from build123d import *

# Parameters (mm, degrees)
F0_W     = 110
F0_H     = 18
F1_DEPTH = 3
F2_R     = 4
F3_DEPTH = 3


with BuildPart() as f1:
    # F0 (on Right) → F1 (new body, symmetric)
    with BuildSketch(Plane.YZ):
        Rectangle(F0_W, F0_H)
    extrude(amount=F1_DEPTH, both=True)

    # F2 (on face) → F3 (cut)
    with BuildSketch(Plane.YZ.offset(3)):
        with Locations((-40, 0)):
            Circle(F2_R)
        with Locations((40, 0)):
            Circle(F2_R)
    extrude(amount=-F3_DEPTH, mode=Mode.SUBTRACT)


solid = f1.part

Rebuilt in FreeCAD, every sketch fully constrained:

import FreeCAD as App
import Part
import Sketcher

V = App.Vector


def add_polygon(sketch, points):
    """Adds a closed chain of lines whose ends are joined by coincident constraints."""
    first, n = sketch.GeometryCount, len(points)
    for a, b in zip(points, points[1:] + points[:1]):
        sketch.addGeometry(Part.LineSegment(App.Vector(*a, 0), App.Vector(*b, 0)), False)
    for i in range(n):
        sketch.addConstraint(Sketcher.Constraint("Coincident", first + i, 2, first + (i + 1) % n, 1))

doc = App.newDocument("Part")
body = doc.addObject("PartDesign::Body", "Body")

# Sketch on YZ plane
sketch1 = body.newObject("Sketcher::SketchObject", "Sketch")
sketch1.AttachmentSupport = (doc.getObject("YZ_Plane"), [""])
sketch1.MapMode = "FlatFace"
add_polygon(sketch1, [(-55, 9), (-55, -9), (55, -9), (55, 9)])  # lines 0-3
sketch1.addConstraint(Sketcher.Constraint("Vertical", 0))
sketch1.addConstraint(Sketcher.Constraint("Horizontal", 1))
sketch1.addConstraint(Sketcher.Constraint("Vertical", 2))
sketch1.addConstraint(Sketcher.Constraint("Horizontal", 3))
sketch1.addConstraint(Sketcher.Constraint("Symmetric", 0, 2, 2, 2, -1, 1))
sketch1.addConstraint(Sketcher.Constraint("DistanceX", 1, 1, 1, 2, 110.0))
sketch1.addConstraint(Sketcher.Constraint("DistanceY", 0, 2, 0, 1, 18.0))
pad1 = body.newObject("PartDesign::Pad", "Pad")
pad1.Profile = sketch1
pad1.Length = 6
pad1.Midplane = True

# Sketch on YZ plane
sketch2 = body.newObject("Sketcher::SketchObject", "Sketch001")
sketch2.AttachmentSupport = (doc.getObject("YZ_Plane"), [""])
sketch2.MapMode = "FlatFace"
sketch2.AttachmentOffset = App.Placement(V(0, 0, 3), App.Rotation())
sketch2.addGeometry(Part.Circle(V(-40, 0, 0), V(0, 0, 1), 4), False)
sketch2.addGeometry(Part.Circle(V(40, 0, 0), V(0, 0, 1), 4), False)
sketch2.addConstraint(Sketcher.Constraint("Equal", 0, 1))
sketch2.addConstraint(Sketcher.Constraint("Symmetric", 0, 3, 1, 3, -1, 1))
sketch2.addConstraint(Sketcher.Constraint("PointOnObject", 0, 3, -1))
sketch2.addConstraint(Sketcher.Constraint("Diameter", 0, 8.0))
sketch2.addConstraint(Sketcher.Constraint("DistanceX", 0, 3, -1, 1, 40.0))
pocket1 = body.newObject("PartDesign::Pocket", "Pocket")
pocket1.Profile = sketch2
pocket1.Length = 3

doc.recompute()
